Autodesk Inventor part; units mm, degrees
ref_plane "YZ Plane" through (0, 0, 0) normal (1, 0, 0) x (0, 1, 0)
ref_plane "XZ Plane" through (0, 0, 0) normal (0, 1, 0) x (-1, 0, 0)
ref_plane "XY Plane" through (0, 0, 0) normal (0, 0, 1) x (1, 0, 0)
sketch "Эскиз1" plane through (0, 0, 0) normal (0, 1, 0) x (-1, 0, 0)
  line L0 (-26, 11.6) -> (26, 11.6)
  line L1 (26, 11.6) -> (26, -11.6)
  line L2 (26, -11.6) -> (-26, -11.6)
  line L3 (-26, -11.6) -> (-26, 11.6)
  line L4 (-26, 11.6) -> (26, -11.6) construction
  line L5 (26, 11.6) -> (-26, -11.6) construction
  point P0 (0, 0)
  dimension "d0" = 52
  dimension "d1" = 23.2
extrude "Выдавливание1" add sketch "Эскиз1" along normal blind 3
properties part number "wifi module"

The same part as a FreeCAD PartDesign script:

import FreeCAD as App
import Part
import Sketcher
from FreeCAD import Vector


def add_polygon(sketch, points):
    """Adds a closed chain of lines whose ends are joined by coincident constraints."""
    first, n = sketch.GeometryCount, len(points)
    for a, b in zip(points, points[1:] + points[:1]):
        sketch.addGeometry(Part.LineSegment(App.Vector(*a, 0), App.Vector(*b, 0)), False)
    for i in range(n):
        sketch.addConstraint(Sketcher.Constraint("Coincident", first + i, 2, first + (i + 1) % n, 1))

doc = App.newDocument("Part")
body = doc.addObject("PartDesign::Body", "Body")

# Sketch on XZ plane
sketch1 = body.newObject("Sketcher::SketchObject", "Sketch")
sketch1.AttachmentSupport = (doc.getObject("XZ_Plane"), [""])
sketch1.MapMode = "FlatFace"
add_polygon(sketch1, [(-26, 11.6), (26, 11.6), (26, -11.6), (-26, -11.6)])  # lines 0-3
sketch1.addConstraint([
    Sketcher.Constraint("Horizontal", 0),
    Sketcher.Constraint("Vertical", 1),
    Sketcher.Constraint("Horizontal", 2),
    Sketcher.Constraint("Vertical", 3),
    Sketcher.Constraint("Symmetric", 0, 2, 2, 2, -1, 1),
    Sketcher.Constraint("DistanceX", 0, 1, 0, 2, 52.0),
    Sketcher.Constraint("DistanceY", 1, 2, 1, 1, 23.2),
])
pad1 = body.newObject("PartDesign::Pad", "Pad")
pad1.Profile = sketch1
pad1.Length = 3
pad1.Reversed = True

doc.recompute()
